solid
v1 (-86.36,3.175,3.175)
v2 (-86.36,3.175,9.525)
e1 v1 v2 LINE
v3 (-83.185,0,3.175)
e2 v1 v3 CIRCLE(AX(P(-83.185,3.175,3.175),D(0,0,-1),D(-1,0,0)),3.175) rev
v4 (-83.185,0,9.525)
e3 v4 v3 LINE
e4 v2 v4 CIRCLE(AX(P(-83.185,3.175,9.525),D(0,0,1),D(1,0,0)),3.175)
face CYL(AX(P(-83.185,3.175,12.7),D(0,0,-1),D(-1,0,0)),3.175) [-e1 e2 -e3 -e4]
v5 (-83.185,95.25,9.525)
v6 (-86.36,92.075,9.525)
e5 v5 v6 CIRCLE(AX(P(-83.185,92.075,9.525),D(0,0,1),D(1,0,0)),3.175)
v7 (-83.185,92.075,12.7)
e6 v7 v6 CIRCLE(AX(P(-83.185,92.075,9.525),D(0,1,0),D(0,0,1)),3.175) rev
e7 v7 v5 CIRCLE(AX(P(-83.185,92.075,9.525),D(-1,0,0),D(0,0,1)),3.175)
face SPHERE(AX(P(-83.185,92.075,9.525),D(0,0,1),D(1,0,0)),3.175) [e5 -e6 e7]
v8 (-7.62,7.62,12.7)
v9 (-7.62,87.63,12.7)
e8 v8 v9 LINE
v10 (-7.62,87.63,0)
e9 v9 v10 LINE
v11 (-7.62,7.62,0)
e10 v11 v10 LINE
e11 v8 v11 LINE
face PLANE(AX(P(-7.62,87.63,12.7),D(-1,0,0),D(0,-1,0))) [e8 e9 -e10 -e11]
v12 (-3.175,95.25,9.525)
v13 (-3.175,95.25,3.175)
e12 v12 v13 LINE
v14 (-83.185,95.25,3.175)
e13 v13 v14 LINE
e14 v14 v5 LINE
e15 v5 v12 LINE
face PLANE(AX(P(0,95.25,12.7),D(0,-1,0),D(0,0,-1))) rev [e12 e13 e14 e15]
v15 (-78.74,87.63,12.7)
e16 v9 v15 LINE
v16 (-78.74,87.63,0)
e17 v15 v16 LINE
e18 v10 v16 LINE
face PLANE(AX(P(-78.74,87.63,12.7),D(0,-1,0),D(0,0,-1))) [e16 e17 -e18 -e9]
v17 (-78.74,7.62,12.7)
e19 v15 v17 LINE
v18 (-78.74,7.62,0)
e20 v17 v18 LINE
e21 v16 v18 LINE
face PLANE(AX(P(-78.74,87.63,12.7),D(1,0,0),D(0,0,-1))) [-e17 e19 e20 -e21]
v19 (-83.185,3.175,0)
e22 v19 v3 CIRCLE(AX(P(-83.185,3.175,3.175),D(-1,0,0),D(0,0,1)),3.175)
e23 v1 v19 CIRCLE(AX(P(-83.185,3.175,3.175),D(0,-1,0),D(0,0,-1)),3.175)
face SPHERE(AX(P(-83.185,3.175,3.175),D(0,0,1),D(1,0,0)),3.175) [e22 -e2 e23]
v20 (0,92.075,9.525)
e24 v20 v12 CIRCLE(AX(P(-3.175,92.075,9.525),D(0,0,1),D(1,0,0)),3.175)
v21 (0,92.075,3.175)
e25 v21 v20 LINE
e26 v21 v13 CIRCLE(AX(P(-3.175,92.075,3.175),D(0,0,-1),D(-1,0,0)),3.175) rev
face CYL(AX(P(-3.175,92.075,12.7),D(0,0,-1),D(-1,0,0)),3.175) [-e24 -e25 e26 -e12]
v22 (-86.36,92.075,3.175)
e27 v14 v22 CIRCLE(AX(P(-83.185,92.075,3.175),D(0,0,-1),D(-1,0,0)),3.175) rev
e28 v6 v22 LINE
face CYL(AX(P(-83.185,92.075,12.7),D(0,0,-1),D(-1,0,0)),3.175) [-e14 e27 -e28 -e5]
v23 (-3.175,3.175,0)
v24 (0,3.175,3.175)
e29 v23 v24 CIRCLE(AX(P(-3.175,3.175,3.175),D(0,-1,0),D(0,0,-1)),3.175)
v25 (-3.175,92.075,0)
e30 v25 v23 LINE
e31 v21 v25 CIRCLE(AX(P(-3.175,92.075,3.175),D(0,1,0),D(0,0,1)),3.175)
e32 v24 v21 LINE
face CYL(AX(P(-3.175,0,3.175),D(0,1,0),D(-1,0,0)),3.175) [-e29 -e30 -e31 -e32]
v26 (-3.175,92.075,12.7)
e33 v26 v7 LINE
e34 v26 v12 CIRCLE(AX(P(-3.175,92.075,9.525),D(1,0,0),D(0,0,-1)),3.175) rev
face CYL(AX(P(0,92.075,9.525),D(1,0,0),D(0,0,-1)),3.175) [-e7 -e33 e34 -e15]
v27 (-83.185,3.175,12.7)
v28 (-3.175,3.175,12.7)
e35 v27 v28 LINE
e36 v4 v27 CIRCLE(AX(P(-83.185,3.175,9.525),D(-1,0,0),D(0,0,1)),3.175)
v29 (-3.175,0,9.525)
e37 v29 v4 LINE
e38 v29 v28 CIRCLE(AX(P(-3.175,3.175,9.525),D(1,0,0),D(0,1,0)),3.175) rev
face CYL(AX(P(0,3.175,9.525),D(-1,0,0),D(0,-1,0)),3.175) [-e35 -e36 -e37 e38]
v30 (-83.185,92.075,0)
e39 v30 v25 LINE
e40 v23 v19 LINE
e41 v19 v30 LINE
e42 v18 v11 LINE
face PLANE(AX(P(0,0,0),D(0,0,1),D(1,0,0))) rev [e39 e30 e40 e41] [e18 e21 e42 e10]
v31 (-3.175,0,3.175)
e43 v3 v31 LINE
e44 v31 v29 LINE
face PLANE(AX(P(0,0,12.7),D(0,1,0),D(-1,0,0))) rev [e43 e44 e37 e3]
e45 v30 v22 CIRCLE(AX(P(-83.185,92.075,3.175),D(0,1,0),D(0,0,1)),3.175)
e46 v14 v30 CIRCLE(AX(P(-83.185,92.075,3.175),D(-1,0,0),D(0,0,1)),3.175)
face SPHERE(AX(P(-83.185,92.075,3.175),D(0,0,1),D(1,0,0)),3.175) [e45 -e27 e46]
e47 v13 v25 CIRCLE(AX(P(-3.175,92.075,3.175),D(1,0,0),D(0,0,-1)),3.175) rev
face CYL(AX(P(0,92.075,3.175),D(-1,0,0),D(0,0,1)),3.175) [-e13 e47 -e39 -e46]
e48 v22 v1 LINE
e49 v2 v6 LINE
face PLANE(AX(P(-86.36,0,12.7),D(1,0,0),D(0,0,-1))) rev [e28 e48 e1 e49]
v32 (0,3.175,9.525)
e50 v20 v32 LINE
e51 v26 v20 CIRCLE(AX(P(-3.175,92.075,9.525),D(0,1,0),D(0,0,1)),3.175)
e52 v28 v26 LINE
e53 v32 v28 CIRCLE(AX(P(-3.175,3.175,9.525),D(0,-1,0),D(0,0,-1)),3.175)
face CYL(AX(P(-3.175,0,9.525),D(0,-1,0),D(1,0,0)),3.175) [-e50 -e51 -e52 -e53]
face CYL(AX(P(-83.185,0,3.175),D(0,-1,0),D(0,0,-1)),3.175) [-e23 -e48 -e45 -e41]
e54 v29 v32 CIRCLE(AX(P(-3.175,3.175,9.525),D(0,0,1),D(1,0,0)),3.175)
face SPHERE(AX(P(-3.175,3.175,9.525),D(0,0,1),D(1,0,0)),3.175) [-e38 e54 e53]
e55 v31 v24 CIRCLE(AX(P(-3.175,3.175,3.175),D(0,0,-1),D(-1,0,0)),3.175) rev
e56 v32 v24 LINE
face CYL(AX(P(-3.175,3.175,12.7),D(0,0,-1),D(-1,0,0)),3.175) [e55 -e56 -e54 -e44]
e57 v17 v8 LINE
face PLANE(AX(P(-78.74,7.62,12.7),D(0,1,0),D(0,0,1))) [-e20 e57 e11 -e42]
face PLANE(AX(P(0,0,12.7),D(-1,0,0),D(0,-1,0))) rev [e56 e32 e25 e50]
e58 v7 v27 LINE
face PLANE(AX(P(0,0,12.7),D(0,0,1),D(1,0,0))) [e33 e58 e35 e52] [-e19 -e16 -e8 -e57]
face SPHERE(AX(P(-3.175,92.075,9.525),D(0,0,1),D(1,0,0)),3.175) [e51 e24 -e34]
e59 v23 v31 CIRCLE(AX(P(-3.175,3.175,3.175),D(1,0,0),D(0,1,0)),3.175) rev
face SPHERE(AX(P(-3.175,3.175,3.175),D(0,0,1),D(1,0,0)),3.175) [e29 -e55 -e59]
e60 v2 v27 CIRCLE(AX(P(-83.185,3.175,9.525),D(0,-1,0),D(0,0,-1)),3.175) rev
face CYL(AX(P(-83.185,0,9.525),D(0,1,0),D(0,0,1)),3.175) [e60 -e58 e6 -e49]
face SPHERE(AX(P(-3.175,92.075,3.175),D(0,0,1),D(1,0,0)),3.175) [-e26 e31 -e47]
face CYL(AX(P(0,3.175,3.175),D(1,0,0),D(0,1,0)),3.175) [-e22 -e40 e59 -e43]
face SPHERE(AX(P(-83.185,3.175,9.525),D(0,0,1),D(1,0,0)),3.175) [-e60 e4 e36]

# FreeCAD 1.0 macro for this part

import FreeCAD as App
import Part
import Sketcher
from FreeCAD import Vector
Q = App.Units.Quantity


def edges_at(feature, points):
    """Names of the edges that pass closest to the given points."""
    edges = feature.Shape.Edges
    near = lambda p: min(range(len(edges)), key=lambda i: edges[i].distToShape(Part.Vertex(*p))[0])
    return sorted({f"Edge{near(p) + 1}" for p in points})


def add_polygon(sketch, points):
    """Adds a closed chain of lines whose ends are joined by coincident constraints."""
    first, n = sketch.GeometryCount, len(points)
    for a, b in zip(points, points[1:] + points[:1]):
        sketch.addGeometry(Part.LineSegment(App.Vector(*a, 0), App.Vector(*b, 0)), False)
    for i in range(n):
        sketch.addConstraint(Sketcher.Constraint("Coincident", first + i, 2, first + (i + 1) % n, 1))

doc = App.newDocument("Part")
body = doc.addObject("PartDesign::Body", "Body")

sketch1 = doc.addObject("Sketcher::SketchObject", "Sketch")
body.addObject(sketch1)
sketch1.AttachmentSupport = (doc.XY_Plane, [""])
sketch1.MapMode = "FlatFace"
add_polygon(sketch1, [(-86.36, 95.25), (-86.36, 0), (0, 0), (0, 95.25)])
add_polygon(sketch1, [(-7.62, 7.62), (-78.74, 7.62), (-78.74, 87.63), (-7.62, 87.63)])
sketch1.addConstraint(Sketcher.Constraint("Vertical", 0))
sketch1.addConstraint(Sketcher.Constraint("Horizontal", 1))
sketch1.addConstraint(Sketcher.Constraint("Vertical", 2))
sketch1.addConstraint(Sketcher.Constraint("Horizontal", 3))
sketch1.addConstraint(Sketcher.Constraint("Horizontal", 4))
sketch1.addConstraint(Sketcher.Constraint("Vertical", 5))
sketch1.addConstraint(Sketcher.Constraint("Horizontal", 6))
sketch1.addConstraint(Sketcher.Constraint("Vertical", 7))
sketch1.addConstraint(Sketcher.Constraint("Coincident", 1, 2, -1, 1))
sketch1.addConstraint(Sketcher.Constraint("DistanceX", 1, 1, 1, 2, Q("3.4 in")))
sketch1.addConstraint(Sketcher.Constraint("DistanceX", 4, 2, 4, 1, Q("2.8 in")))
sketch1.addConstraint(Sketcher.Constraint("DistanceY", 0, 2, 0, 1, Q("3.75 in")))
sketch1.addConstraint(Sketcher.Constraint("DistanceY", 5, 1, 5, 2, Q("3.15 in")))
sketch1.addConstraint(Sketcher.Constraint("DistanceX", 4, 2, -1, 1, Q("3.1 in")))
sketch1.addConstraint(Sketcher.Constraint("DistanceY", -1, 1, 4, 2, Q("0.3 in")))
pad1 = doc.addObject("PartDesign::Pad", "Pad")
body.addObject(pad1)
pad1.Profile = sketch1
pad1.Length = Q("0.5 in")
doc.recompute()

fillet = doc.addObject("PartDesign::Fillet", "Fillet")
body.addObject(fillet)
fillet.Base = (pad1, edges_at(pad1, [
    (-86.36, 47.625, 12.7),
    (-43.18, 0, 12.7),
    (0, 47.625, 12.7),
    (-43.18, 0, 0),
    (-86.36, 47.625, 0),
    (-43.18, 95.25, 0),
    (0, 47.625, 0),
    (0, 0, 6.35),
    (-86.36, 0, 6.35),
    (-86.36, 95.25, 6.35),
    (0, 95.25, 6.35),
    (-43.18, 95.25, 12.7),
]))
fillet.Radius = Q("0.125 in")

doc.recompute()
